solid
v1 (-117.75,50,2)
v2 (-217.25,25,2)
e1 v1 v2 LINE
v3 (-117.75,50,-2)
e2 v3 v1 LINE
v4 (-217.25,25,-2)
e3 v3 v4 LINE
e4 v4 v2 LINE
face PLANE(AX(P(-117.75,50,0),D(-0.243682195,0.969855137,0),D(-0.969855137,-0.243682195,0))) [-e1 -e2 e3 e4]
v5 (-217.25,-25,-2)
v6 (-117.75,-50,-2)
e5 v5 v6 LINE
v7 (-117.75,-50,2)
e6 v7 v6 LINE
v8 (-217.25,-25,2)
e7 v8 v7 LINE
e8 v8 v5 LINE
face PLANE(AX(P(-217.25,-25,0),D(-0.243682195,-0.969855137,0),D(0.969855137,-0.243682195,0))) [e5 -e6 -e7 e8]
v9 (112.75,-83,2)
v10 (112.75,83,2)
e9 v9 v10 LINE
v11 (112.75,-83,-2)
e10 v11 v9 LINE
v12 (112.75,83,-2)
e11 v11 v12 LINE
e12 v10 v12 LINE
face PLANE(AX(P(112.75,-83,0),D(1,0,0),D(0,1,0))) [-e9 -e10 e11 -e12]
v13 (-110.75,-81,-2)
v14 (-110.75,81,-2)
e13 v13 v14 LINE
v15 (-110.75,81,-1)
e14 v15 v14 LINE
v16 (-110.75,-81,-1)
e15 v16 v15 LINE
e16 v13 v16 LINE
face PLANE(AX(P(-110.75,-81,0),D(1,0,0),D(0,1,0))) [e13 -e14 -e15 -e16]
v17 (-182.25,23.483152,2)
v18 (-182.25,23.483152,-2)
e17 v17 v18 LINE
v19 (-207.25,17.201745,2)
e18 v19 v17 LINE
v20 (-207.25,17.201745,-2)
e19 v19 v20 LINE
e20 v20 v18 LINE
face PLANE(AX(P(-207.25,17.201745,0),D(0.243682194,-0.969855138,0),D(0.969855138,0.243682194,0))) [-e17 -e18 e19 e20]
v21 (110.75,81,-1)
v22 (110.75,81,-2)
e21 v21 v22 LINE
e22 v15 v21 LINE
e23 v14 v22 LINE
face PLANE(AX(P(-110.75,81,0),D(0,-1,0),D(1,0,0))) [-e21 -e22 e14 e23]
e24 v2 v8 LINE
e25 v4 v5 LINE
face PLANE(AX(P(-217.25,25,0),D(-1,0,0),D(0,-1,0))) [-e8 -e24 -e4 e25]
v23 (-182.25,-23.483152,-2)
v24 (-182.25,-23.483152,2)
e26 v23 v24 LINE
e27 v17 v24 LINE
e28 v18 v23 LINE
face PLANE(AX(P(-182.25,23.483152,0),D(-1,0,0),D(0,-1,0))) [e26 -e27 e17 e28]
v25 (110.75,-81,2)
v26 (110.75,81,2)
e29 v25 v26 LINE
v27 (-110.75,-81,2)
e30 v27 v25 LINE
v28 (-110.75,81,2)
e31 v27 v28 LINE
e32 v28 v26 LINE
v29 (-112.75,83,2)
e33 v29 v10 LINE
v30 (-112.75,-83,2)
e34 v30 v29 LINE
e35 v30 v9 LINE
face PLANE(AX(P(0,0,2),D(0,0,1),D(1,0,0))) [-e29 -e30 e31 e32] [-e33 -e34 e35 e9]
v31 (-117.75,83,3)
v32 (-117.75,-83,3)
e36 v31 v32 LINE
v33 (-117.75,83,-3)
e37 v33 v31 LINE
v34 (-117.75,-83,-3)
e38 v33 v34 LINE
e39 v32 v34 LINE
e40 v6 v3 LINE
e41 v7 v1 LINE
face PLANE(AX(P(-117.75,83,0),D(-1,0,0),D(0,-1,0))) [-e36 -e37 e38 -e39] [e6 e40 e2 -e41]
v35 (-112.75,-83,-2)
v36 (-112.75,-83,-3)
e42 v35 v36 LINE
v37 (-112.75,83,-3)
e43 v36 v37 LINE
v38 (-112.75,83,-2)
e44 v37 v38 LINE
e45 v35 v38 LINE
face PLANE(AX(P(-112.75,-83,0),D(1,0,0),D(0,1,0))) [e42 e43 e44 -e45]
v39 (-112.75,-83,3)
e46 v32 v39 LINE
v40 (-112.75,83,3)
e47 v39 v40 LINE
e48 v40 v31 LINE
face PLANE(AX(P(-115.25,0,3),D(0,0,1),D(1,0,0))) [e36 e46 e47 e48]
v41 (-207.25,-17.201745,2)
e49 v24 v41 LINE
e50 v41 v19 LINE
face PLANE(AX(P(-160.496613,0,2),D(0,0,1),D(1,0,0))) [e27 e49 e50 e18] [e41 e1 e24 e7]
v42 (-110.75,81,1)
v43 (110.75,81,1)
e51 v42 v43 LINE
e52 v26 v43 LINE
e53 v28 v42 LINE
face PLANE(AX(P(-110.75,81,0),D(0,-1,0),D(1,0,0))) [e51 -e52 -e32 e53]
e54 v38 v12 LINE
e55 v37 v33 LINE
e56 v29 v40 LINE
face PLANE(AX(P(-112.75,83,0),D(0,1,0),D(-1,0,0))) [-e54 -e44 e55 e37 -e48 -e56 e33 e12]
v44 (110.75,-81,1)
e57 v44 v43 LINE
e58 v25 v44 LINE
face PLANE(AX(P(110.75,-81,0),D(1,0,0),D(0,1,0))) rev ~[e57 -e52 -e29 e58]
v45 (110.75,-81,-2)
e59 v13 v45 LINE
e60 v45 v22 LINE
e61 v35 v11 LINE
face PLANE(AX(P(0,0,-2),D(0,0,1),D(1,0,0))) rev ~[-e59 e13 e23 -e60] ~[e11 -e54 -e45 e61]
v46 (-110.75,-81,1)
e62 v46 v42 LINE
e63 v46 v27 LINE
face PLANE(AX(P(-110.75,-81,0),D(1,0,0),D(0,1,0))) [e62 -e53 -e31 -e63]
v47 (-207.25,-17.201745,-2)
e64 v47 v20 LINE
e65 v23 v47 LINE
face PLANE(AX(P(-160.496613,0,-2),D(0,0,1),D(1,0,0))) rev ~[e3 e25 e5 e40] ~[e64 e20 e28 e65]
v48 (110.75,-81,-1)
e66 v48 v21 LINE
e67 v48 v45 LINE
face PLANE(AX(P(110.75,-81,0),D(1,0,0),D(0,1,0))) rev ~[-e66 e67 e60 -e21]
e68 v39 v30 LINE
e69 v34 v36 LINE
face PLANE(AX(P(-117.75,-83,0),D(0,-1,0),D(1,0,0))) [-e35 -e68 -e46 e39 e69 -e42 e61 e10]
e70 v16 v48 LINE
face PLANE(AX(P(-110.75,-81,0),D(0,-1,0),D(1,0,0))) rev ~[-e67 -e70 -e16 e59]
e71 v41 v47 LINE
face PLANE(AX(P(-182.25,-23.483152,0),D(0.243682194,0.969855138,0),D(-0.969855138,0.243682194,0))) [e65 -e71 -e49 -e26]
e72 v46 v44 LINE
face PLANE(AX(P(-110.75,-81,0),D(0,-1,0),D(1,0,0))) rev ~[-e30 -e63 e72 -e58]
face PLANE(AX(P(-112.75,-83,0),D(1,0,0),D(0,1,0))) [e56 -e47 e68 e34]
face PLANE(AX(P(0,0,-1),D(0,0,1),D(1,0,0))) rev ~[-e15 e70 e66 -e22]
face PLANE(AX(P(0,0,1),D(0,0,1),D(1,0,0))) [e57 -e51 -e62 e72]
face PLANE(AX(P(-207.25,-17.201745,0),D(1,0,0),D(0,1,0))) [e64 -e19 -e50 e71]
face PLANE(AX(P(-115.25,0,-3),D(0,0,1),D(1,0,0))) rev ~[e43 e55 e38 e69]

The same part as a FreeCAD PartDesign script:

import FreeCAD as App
import Part
import Sketcher
from FreeCAD import Vector


def add_polygon(sketch, points):
    """Adds a closed chain of lines whose ends are joined by coincident constraints."""
    first, n = sketch.GeometryCount, len(points)
    for a, b in zip(points, points[1:] + points[:1]):
        sketch.addGeometry(Part.LineSegment(App.Vector(*a, 0), App.Vector(*b, 0)), False)
    for i in range(n):
        sketch.addConstraint(Sketcher.Constraint("Coincident", first + i, 2, first + (i + 1) % n, 1))

doc = App.newDocument("Part")
params = doc.addObject("Spreadsheet::Sheet", "Params")
for row, (alias, value) in enumerate([
    ("sketch1_height", "162 mm"),
    ("sketch1_width", "221.5 mm"),
    ("pad1_length", "2 mm"),
    ("sketch2_height", "166 mm"),
    ("sketch2_height2", "162 mm"),
    ("sketch2_width", "225.5 mm"),
    ("sketch2_width2", "221.5 mm"),
    ("pad2_length", "4 mm"),
    ("sketch3_width", "5 mm"),
    ("sketch3_height", "166 mm"),
    ("pad3_length", "6 mm"),
    ("sketch4_height", "100 mm"),
    ("sketch4_height2", "50 mm"),
    ("pad4_length", "4 mm"),
], start=1):
    params.set(f"A{row}", alias)
    params.set(f"B{row}", "=" + value)
    params.setAlias(f"B{row}", alias)

body = doc.addObject("PartDesign::Body", "Body")

# Sketch on XY plane
sketch1 = doc.addObject("Sketcher::SketchObject", "Sketch")
body.addObject(sketch1)
sketch1.AttachmentSupport = (doc.XY_Plane, [""])
sketch1.MapMode = "FlatFace"
add_polygon(sketch1, [(-111, 81), (-111, -81), (111, -81), (111, 81)])  # lines 0-3
sketch1.addConstraint(Sketcher.Constraint("Vertical", 0))
sketch1.addConstraint(Sketcher.Constraint("Horizontal", 1))
sketch1.addConstraint(Sketcher.Constraint("Vertical", 2))
sketch1.addConstraint(Sketcher.Constraint("Horizontal", 3))
sketch1.addConstraint(Sketcher.Constraint("Symmetric", 0, 2, 2, 2, -1, 1))
sketch1.addConstraint(Sketcher.Constraint("DistanceY", 0, 2, 0, 1, 162.0))
sketch1.addConstraint(Sketcher.Constraint("DistanceX", 1, 1, 1, 2, 221.5))
sketch1.setExpression("Constraints[9]", "Params.sketch1_height")
sketch1.setExpression("Constraints[10]", "Params.sketch1_width")
pad1 = doc.addObject("PartDesign::Pad", "Pad")
body.addObject(pad1)
pad1.Profile = sketch1
pad1.setExpression("Length", "Params.pad1_length")
pad1.Midplane = True

# Sketch on XY plane
sketch2 = doc.addObject("Sketcher::SketchObject", "Sketch001")
body.addObject(sketch2)
sketch2.AttachmentSupport = (doc.XY_Plane, [""])
sketch2.MapMode = "FlatFace"
add_polygon(sketch2, [(-113, 83), (-113, -83), (113, -83), (113, 83)])  # lines 0-3
add_polygon(sketch2, [(111, -81), (-111, -81), (-111, 81), (111, 81)])  # lines 4-7
sketch2.addConstraint(Sketcher.Constraint("Vertical", 0))
sketch2.addConstraint(Sketcher.Constraint("Horizontal", 1))
sketch2.addConstraint(Sketcher.Constraint("Vertical", 2))
sketch2.addConstraint(Sketcher.Constraint("Horizontal", 3))
sketch2.addConstraint(Sketcher.Constraint("Horizontal", 4))
sketch2.addConstraint(Sketcher.Constraint("Vertical", 5))
sketch2.addConstraint(Sketcher.Constraint("Horizontal", 6))
sketch2.addConstraint(Sketcher.Constraint("Vertical", 7))
sketch2.addConstraint(Sketcher.Constraint("Symmetric", 0, 2, 2, 2, -1, 1))
sketch2.addConstraint(Sketcher.Constraint("Symmetric", 4, 2, 6, 2, -1, 1))
sketch2.addConstraint(Sketcher.Constraint("DistanceY", 0, 2, 0, 1, 166.0))
sketch2.addConstraint(Sketcher.Constraint("DistanceY", 5, 1, 5, 2, 162.0))
sketch2.addConstraint(Sketcher.Constraint("DistanceX", 1, 1, 1, 2, 225.5))
sketch2.addConstraint(Sketcher.Constraint("DistanceX", 4, 2, 4, 1, 221.5))
sketch2.setExpression("Constraints[18]", "Params.sketch2_height")
sketch2.setExpression("Constraints[19]", "Params.sketch2_height2")
sketch2.setExpression("Constraints[20]", "Params.sketch2_width")
sketch2.setExpression("Constraints[21]", "Params.sketch2_width2")
pad2 = doc.addObject("PartDesign::Pad", "Pad001")
body.addObject(pad2)
pad2.Profile = sketch2
pad2.setExpression("Length", "Params.pad2_length")
pad2.Midplane = True

# Sketch on XY plane
sketch3 = doc.addObject("Sketcher::SketchObject", "Sketch002")
body.addObject(sketch3)
sketch3.AttachmentSupport = (doc.XY_Plane, [""])
sketch3.MapMode = "FlatFace"
add_polygon(sketch3, [(-113, -83), (-113, 83), (-118, 83), (-118, -83)])  # lines 0-3
sketch3.addConstraint(Sketcher.Constraint("Vertical", 0))
sketch3.addConstraint(Sketcher.Constraint("Horizontal", 1))
sketch3.addConstraint(Sketcher.Constraint("Vertical", 2))
sketch3.addConstraint(Sketcher.Constraint("Horizontal", 3))
sketch3.addConstraint(Sketcher.Constraint("DistanceX", 1, 2, 1, 1, 5.0))
sketch3.addConstraint(Sketcher.Constraint("DistanceY", 0, 1, 0, 2, 166.0))
sketch3.addConstraint(Sketcher.Constraint("DistanceY", -1, 1, 0, 2, 83.0))
sketch3.addConstraint(Sketcher.Constraint("DistanceX", 0, 2, -1, 1, 112.75))
sketch3.setExpression("Constraints[8]", "Params.sketch3_width")
sketch3.setExpression("Constraints[9]", "Params.sketch3_height")
pad3 = doc.addObject("PartDesign::Pad", "Pad002")
body.addObject(pad3)
pad3.Profile = sketch3
pad3.setExpression("Length", "Params.pad3_length")
pad3.Midplane = True

# Sketch on XY plane
sketch4 = doc.addObject("Sketcher::SketchObject", "Sketch003")
body.addObject(sketch4)
sketch4.AttachmentSupport = (doc.XY_Plane, [""])
sketch4.MapMode = "FlatFace"
add_polygon(sketch4, [(-118, -50), (-118, 50), (-217, 25), (-217, -25)])  # lines 0-3
add_polygon(sketch4, [(-182, 23), (-182, -23), (-207, -17), (-207, 17)])  # lines 4-7
sketch4.addConstraint(Sketcher.Constraint("Vertical", 0))
sketch4.addConstraint(Sketcher.Constraint("Vertical", 2))
sketch4.addConstraint(Sketcher.Constraint("Vertical", 4))
sketch4.addConstraint(Sketcher.Constraint("Vertical", 6))
sketch4.addConstraint(Sketcher.Constraint("Parallel", 3, 5))
sketch4.addConstraint(Sketcher.Constraint("Parallel", 1, 7))
sketch4.addConstraint(Sketcher.Constraint("Equal", 1, 3))
sketch4.addConstraint(Sketcher.Constraint("DistanceY", 0, 1, 0, 2, 100.0))
sketch4.addConstraint(Sketcher.Constraint("DistanceY", 2, 2, 2, 1, 50.0))
sketch4.addConstraint(Sketcher.Constraint("DistanceY", -1, 1, 0, 2, 50.0))
sketch4.addConstraint(Sketcher.Constraint("DistanceX", 2, 2, 4, 2, 35.0))
sketch4.addConstraint(Sketcher.Constraint("DistanceX", 2, 2, 5, 2, 10.0))
sketch4.addConstraint(Sketcher.Constraint("DistanceX", 1, 2, 0, 2, 99.5))
sketch4.addConstraint(Sketcher.Constraint("DistanceX", 0, 2, -1, 1, 117.75))
sketch4.addConstraint(Sketcher.Constraint("DistanceY", 6, 1, 6, 2, 34.40349))
sketch4.addConstraint(Sketcher.Constraint("DistanceY", 4, 2, -1, 1, 23.483152))
sketch4.setExpression("Constraints[15]", "Params.sketch4_height")
sketch4.setExpression("Constraints[16]", "Params.sketch4_height2")
pad4 = doc.addObject("PartDesign::Pad", "Pad003")
body.addObject(pad4)
pad4.Profile = sketch4
pad4.setExpression("Length", "Params.pad4_length")
pad4.Midplane = True

doc.recompute()
